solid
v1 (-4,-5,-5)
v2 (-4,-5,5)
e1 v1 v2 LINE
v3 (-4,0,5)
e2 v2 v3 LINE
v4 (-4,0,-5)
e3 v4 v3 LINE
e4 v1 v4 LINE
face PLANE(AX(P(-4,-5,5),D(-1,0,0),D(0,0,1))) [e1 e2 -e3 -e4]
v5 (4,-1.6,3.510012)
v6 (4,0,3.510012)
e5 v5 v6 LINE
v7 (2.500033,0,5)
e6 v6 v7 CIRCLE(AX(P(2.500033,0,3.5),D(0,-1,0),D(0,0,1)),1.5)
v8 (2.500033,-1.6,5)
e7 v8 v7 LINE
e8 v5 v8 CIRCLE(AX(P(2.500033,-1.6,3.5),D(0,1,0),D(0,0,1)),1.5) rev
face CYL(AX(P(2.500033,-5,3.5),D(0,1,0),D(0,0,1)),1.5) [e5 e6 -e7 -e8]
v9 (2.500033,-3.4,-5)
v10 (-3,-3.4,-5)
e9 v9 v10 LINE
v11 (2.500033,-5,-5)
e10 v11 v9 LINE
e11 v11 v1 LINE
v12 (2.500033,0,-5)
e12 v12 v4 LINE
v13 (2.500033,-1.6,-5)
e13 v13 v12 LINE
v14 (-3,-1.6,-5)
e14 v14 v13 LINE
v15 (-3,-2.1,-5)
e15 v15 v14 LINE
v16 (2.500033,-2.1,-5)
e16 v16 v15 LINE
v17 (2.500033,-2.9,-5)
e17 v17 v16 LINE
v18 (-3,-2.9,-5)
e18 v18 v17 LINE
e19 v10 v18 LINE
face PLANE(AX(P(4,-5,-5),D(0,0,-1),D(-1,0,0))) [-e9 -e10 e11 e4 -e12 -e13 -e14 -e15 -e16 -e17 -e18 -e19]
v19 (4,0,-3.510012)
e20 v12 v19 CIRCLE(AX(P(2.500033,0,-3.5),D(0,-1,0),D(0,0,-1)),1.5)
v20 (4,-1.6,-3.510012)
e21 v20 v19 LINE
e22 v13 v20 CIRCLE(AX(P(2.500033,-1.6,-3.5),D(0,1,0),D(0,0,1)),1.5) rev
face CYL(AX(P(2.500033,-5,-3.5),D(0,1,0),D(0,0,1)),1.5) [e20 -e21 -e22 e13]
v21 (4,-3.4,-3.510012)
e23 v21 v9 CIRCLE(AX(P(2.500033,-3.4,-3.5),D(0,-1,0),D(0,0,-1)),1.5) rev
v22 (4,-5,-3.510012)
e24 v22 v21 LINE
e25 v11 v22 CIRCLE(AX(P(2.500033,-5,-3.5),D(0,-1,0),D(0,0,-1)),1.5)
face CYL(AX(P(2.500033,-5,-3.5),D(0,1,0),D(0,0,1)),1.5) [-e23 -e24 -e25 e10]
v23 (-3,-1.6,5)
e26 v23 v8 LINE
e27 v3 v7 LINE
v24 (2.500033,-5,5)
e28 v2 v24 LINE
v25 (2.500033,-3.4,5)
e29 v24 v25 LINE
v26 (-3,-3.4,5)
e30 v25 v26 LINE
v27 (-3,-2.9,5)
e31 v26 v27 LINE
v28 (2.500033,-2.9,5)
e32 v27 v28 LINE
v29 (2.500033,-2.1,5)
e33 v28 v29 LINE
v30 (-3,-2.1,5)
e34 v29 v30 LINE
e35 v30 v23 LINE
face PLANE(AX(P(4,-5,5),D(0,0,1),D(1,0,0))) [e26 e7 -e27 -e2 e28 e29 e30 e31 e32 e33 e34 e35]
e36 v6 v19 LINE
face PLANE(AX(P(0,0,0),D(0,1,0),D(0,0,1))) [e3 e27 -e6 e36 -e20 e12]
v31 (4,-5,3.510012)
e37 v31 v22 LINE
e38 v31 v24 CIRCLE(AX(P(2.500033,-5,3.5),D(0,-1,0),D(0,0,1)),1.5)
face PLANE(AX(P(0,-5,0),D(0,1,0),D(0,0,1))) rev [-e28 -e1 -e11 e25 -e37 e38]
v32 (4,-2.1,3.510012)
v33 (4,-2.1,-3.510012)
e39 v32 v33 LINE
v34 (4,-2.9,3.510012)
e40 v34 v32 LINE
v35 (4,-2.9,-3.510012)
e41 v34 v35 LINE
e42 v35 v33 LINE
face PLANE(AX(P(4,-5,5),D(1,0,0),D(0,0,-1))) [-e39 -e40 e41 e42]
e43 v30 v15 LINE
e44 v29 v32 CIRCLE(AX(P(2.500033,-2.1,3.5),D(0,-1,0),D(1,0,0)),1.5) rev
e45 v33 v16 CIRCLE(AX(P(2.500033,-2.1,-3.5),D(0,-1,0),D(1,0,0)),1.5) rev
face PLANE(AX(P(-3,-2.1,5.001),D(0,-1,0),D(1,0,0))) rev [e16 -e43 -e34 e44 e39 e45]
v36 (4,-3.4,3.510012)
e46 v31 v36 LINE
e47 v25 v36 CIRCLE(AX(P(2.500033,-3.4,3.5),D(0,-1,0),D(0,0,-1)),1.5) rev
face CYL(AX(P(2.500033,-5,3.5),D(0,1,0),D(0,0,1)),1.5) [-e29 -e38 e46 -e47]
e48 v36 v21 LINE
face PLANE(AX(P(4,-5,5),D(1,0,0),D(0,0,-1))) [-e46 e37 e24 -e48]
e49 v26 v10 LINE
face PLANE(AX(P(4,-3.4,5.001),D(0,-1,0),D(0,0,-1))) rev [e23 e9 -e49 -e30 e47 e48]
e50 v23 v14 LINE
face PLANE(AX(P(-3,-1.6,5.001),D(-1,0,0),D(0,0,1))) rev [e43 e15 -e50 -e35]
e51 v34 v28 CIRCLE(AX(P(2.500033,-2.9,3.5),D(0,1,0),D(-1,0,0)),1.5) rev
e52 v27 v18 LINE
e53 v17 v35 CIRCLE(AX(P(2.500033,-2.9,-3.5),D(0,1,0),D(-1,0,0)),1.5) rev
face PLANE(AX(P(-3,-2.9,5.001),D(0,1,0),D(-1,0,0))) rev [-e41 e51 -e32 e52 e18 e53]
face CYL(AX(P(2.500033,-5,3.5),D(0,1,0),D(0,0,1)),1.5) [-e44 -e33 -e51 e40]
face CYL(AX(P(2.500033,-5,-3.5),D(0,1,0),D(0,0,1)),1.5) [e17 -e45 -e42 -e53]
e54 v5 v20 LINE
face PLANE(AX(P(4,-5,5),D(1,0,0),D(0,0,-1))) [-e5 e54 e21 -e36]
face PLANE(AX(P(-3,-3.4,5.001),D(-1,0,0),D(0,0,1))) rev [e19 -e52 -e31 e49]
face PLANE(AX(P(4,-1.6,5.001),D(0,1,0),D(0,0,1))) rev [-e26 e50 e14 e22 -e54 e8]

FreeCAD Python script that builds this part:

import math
import FreeCAD as App
import Part
import Sketcher


def add_polygon(sketch, points):
    """Adds a closed chain of lines whose ends are joined by coincident constraints."""
    first, n = sketch.GeometryCount, len(points)
    for a, b in zip(points, points[1:] + points[:1]):
        sketch.addGeometry(Part.LineSegment(App.Vector(*a, 0), App.Vector(*b, 0)), False)
    for i in range(n):
        sketch.addConstraint(Sketcher.Constraint("Coincident", first + i, 2, first + (i + 1) % n, 1))

doc = App.newDocument("Part")
params = doc.addObject("Spreadsheet::Sheet", "Params")
for row, (alias, value) in enumerate([
    ("sketch1_width", "8 mm"),
    ("sketch1_height", "10 mm"),
    ("pad1_length", "5 mm"),
    ("sketch2_width", "7 mm"),
    ("sketch2_height", "0.5 mm"),
    ("sketch3_width", "7 mm"),
    ("sketch3_height", "0.5 mm"),
    ("sketch4_radius", "1.5 mm"),
    ("sketch4_radius2", "1.5 mm"),
    ("pocket3_length", "5 mm"),
], start=1):
    params.set(f"A{row}", alias)
    params.set(f"B{row}", "=" + value)
    params.setAlias(f"B{row}", alias)

body = doc.addObject("PartDesign::Body", "Body")

# Sketch on XZ plane
sketch1 = body.newObject("Sketcher::SketchObject", "Sketch")
sketch1.AttachmentSupport = (doc.getObject("XZ_Plane"), [""])
sketch1.MapMode = "FlatFace"
add_polygon(sketch1, [(-4, -5), (-4, 5), (4, 5), (4, -5)])  # lines 0-3
sketch1.addConstraint(Sketcher.Constraint("Vertical", 0))
sketch1.addConstraint(Sketcher.Constraint("Horizontal", 1))
sketch1.addConstraint(Sketcher.Constraint("Vertical", 2))
sketch1.addConstraint(Sketcher.Constraint("Horizontal", 3))
sketch1.addConstraint(Sketcher.Constraint("Symmetric", 0, 2, 2, 2, -1, 1))
sketch1.addConstraint(Sketcher.Constraint("DistanceX", 1, 1, 1, 2, 8.0))
sketch1.addConstraint(Sketcher.Constraint("DistanceY", 0, 1, 0, 2, 10.0))
sketch1.setExpression("Constraints[9]", "Params.sketch1_width")
sketch1.setExpression("Constraints[10]", "Params.sketch1_height")
pad1 = body.newObject("PartDesign::Pad", "Pad")
pad1.Profile = sketch1
pad1.setExpression("Length", "Params.pad1_length")

# Sketch on XY plane
sketch2 = body.newObject("Sketcher::SketchObject", "Sketch001")
sketch2.AttachmentSupport = (doc.getObject("XY_Plane"), [""])
sketch2.MapMode = "FlatFace"
sketch2.AttachmentOffset = App.Placement(App.Vector(0, 0, -5), App.Rotation())
add_polygon(sketch2, [(4, -1.6), (4, -2.1), (-3, -2.1), (-3, -1.6)])  # lines 0-3
sketch2.addConstraint(Sketcher.Constraint("Vertical", 0))
sketch2.addConstraint(Sketcher.Constraint("Horizontal", 1))
sketch2.addConstraint(Sketcher.Constraint("Vertical", 2))
sketch2.addConstraint(Sketcher.Constraint("Horizontal", 3))
sketch2.addConstraint(Sketcher.Constraint("DistanceX", 1, 2, 1, 1, 7.0))
sketch2.addConstraint(Sketcher.Constraint("DistanceY", 0, 2, 0, 1, 0.5))
sketch2.addConstraint(Sketcher.Constraint("DistanceX", -1, 1, 0, 2, 4.0))
sketch2.addConstraint(Sketcher.Constraint("DistanceY", 0, 2, -1, 1, 2.1))
sketch2.setExpression("Constraints[8]", "Params.sketch2_width")
sketch2.setExpression("Constraints[9]", "Params.sketch2_height")
pocket1 = body.newObject("PartDesign::Pocket", "Pocket")
pocket1.Profile = sketch2
pocket1.Type = "UpToFirst"
pocket1.Reversed = True

# Sketch on XY plane
sketch3 = body.newObject("Sketcher::SketchObject", "Sketch002")
sketch3.AttachmentSupport = (doc.getObject("XY_Plane"), [""])
sketch3.MapMode = "FlatFace"
sketch3.AttachmentOffset = App.Placement(App.Vector(0, 0, -5), App.Rotation())
add_polygon(sketch3, [(4, -2.9), (4, -3.4), (-3, -3.4), (-3, -2.9)])  # lines 0-3
sketch3.addConstraint(Sketcher.Constraint("Vertical", 0))
sketch3.addConstraint(Sketcher.Constraint("Horizontal", 1))
sketch3.addConstraint(Sketcher.Constraint("Vertical", 2))
sketch3.addConstraint(Sketcher.Constraint("Horizontal", 3))
sketch3.addConstraint(Sketcher.Constraint("DistanceX", 1, 2, 1, 1, 7.0))
sketch3.addConstraint(Sketcher.Constraint("DistanceY", 0, 2, 0, 1, 0.5))
sketch3.addConstraint(Sketcher.Constraint("DistanceX", -1, 1, 0, 2, 4.0))
sketch3.addConstraint(Sketcher.Constraint("DistanceY", 0, 2, -1, 1, 3.4))
sketch3.setExpression("Constraints[8]", "Params.sketch3_width")
sketch3.setExpression("Constraints[9]", "Params.sketch3_height")
pocket2 = body.newObject("PartDesign::Pocket", "Pocket001")
pocket2.Profile = sketch3
pocket2.Type = "UpToFirst"
pocket2.Reversed = True

# Sketch on XZ plane
sketch4 = body.newObject("Sketcher::SketchObject", "Sketch003")
sketch4.AttachmentSupport = (doc.getObject("XZ_Plane"), [""])
sketch4.MapMode = "FlatFace"
sketch4.addGeometry(Part.LineSegment(App.Vector(4, -5, 0), App.Vector(2.500033, -5, 0)), False)
sketch4.addGeometry(Part.ArcOfCircle(Part.Circle(App.Vector(2.500033, -3.5, 0), App.Vector(0, 0, 1), 1.5), math.radians(-90), math.radians(-0.382445)), False)
sketch4.addGeometry(Part.LineSegment(App.Vector(4, -3.510012, 0), App.Vector(4, -5, 0)), False)
sketch4.addGeometry(Part.LineSegment(App.Vector(4, 5, 0), App.Vector(4, 3.510012, 0)), False)
sketch4.addGeometry(Part.ArcOfCircle(Part.Circle(App.Vector(2.500033, 3.5, 0), App.Vector(0, 0, 1), 1.5), math.radians(0.382445), math.radians(90)), False)
sketch4.addGeometry(Part.LineSegment(App.Vector(2.500033, 5, 0), App.Vector(4, 5, 0)), False)
sketch4.addConstraint(Sketcher.Constraint("Coincident", 0, 2, 1, 1))
sketch4.addConstraint(Sketcher.Constraint("Coincident", 1, 2, 2, 1))
sketch4.addConstraint(Sketcher.Constraint("Coincident", 2, 2, 0, 1))
sketch4.addConstraint(Sketcher.Constraint("Coincident", 3, 2, 4, 1))
sketch4.addConstraint(Sketcher.Constraint("Coincident", 4, 2, 5, 1))
sketch4.addConstraint(Sketcher.Constraint("Coincident", 5, 2, 3, 1))
sketch4.addConstraint(Sketcher.Constraint("Horizontal", 0))
sketch4.addConstraint(Sketcher.Constraint("Vertical", 2))
sketch4.addConstraint(Sketcher.Constraint("Vertical", 3))
sketch4.addConstraint(Sketcher.Constraint("Horizontal", 5))
sketch4.addConstraint(Sketcher.Constraint("Radius", 1, 1.5))
sketch4.addConstraint(Sketcher.Constraint("Radius", 4, 1.5))
sketch4.addConstraint(Sketcher.Constraint("DistanceY", 0, 2, -1, 1, 5.0))
sketch4.addConstraint(Sketcher.Constraint("DistanceX", -1, 1, 1, 2, 4.0))
sketch4.addConstraint(Sketcher.Constraint("DistanceX", -1, 1, 3, 2, 4.0))
sketch4.addConstraint(Sketcher.Constraint("DistanceY", -1, 1, 4, 2, 5.0))
sketch4.addConstraint(Sketcher.Constraint("DistanceX", 0, 2, 0, 1, 1.499967))
sketch4.addConstraint(Sketcher.Constraint("DistanceX", 5, 1, 5, 2, 1.499967))
sketch4.addConstraint(Sketcher.Constraint("DistanceY", 2, 2, 2, 1, 1.489988))
sketch4.addConstraint(Sketcher.Constraint("DistanceY", 3, 2, 3, 1, 1.489988))
sketch4.setExpression("Constraints[10]", "Params.sketch4_radius")
sketch4.setExpression("Constraints[11]", "Params.sketch4_radius2")
pocket3 = body.newObject("PartDesign::Pocket", "Pocket002")
pocket3.Profile = sketch4
pocket3.setExpression("Length", "Params.pocket3_length")
pocket3.Reversed = True

doc.recompute()
